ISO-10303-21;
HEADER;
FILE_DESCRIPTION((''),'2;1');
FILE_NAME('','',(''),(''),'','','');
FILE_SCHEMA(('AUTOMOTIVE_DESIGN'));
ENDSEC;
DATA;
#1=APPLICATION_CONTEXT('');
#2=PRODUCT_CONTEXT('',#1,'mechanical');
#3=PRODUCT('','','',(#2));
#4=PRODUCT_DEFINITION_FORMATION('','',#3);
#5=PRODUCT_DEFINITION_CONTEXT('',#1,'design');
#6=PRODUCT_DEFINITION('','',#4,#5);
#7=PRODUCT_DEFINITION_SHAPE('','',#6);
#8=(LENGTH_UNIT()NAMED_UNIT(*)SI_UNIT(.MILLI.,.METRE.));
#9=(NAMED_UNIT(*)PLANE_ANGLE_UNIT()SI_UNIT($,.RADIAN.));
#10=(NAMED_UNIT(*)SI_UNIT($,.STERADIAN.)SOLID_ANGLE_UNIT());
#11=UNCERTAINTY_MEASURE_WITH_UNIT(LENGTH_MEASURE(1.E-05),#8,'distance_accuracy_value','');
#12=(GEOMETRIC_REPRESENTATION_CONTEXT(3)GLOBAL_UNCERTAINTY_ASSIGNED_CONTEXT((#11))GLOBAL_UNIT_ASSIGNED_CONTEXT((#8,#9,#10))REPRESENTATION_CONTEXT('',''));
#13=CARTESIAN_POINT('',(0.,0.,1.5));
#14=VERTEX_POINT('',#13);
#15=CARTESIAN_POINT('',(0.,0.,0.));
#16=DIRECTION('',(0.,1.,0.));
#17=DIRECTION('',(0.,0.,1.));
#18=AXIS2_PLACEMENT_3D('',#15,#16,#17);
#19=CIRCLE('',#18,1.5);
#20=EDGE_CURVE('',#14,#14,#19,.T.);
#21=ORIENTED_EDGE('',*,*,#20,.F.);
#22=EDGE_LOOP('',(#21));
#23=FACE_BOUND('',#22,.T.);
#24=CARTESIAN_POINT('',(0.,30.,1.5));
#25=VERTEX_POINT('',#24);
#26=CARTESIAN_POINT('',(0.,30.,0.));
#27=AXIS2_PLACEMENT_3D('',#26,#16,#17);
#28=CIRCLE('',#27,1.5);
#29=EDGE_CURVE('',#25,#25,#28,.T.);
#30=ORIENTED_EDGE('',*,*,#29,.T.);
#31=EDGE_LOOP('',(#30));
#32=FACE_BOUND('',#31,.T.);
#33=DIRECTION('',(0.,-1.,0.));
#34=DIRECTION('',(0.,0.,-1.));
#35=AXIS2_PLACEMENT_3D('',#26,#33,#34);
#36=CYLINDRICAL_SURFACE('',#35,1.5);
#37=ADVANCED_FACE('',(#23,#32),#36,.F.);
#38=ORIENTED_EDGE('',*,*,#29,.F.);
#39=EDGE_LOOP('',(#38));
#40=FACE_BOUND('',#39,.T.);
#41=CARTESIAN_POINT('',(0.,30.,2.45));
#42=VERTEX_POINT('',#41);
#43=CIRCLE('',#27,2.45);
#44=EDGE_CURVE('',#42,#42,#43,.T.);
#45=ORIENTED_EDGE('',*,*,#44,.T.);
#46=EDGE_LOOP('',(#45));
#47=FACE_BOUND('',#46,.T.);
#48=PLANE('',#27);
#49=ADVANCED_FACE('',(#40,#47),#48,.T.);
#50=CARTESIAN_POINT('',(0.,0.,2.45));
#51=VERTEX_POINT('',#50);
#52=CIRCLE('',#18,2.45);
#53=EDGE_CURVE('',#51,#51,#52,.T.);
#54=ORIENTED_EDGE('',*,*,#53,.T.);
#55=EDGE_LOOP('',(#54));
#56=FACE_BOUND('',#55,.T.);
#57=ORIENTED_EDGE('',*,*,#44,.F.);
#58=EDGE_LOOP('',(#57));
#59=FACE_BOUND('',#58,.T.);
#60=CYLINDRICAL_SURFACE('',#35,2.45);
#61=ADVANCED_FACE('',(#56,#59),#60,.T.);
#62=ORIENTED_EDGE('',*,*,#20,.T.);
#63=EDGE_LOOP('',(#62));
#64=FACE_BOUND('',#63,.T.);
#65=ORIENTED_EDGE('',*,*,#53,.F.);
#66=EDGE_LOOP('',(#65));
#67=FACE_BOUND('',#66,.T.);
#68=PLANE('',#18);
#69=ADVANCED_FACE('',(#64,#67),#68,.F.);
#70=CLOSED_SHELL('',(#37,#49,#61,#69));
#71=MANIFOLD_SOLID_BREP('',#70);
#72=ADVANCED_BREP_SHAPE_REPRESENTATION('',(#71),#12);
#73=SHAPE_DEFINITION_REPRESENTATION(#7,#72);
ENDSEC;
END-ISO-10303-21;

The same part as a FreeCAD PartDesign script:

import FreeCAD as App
import Part
import Sketcher

doc = App.newDocument("Part")
params = doc.addObject("Spreadsheet::Sheet", "Params")
for row, (alias, value) in enumerate([
    ("sketch1_diameter", "3 mm"),
    ("sketch1_diameter2", "4.9 mm"),
    ("pad1_length", "30 mm"),
], start=1):
    params.set(f"A{row}", alias)
    params.set(f"B{row}", "=" + value)
    params.setAlias(f"B{row}", alias)

body = doc.addObject("PartDesign::Body", "Body")

sketch1 = body.newObject("Sketcher::SketchObject", "Sketch")
sketch1.AttachmentSupport = (doc.getObject("XZ_Plane"), [""])
sketch1.MapMode = "FlatFace"
sketch1.addGeometry([
    Part.Circle(App.Vector(0, 0, 0), App.Vector(0, 0, 1), 2.45),
    Part.Circle(App.Vector(0, 0, 0), App.Vector(0, 0, 1), 1.5),
], False)
sketch1.addConstraint([
    Sketcher.Constraint("Coincident", 0, 3, -1, 1),
    Sketcher.Constraint("Coincident", 1, 3, -1, 1),
    Sketcher.Constraint("Diameter", 1, 3.0),
    Sketcher.Constraint("Diameter", 0, 4.9),
])
sketch1.setExpression("Constraints[2]", "Params.sketch1_diameter")
sketch1.setExpression("Constraints[3]", "Params.sketch1_diameter2")
pad1 = body.newObject("PartDesign::Pad", "Pad")
pad1.Profile = sketch1
pad1.setExpression("Length", "Params.pad1_length")
pad1.Reversed = True

doc.recompute()
